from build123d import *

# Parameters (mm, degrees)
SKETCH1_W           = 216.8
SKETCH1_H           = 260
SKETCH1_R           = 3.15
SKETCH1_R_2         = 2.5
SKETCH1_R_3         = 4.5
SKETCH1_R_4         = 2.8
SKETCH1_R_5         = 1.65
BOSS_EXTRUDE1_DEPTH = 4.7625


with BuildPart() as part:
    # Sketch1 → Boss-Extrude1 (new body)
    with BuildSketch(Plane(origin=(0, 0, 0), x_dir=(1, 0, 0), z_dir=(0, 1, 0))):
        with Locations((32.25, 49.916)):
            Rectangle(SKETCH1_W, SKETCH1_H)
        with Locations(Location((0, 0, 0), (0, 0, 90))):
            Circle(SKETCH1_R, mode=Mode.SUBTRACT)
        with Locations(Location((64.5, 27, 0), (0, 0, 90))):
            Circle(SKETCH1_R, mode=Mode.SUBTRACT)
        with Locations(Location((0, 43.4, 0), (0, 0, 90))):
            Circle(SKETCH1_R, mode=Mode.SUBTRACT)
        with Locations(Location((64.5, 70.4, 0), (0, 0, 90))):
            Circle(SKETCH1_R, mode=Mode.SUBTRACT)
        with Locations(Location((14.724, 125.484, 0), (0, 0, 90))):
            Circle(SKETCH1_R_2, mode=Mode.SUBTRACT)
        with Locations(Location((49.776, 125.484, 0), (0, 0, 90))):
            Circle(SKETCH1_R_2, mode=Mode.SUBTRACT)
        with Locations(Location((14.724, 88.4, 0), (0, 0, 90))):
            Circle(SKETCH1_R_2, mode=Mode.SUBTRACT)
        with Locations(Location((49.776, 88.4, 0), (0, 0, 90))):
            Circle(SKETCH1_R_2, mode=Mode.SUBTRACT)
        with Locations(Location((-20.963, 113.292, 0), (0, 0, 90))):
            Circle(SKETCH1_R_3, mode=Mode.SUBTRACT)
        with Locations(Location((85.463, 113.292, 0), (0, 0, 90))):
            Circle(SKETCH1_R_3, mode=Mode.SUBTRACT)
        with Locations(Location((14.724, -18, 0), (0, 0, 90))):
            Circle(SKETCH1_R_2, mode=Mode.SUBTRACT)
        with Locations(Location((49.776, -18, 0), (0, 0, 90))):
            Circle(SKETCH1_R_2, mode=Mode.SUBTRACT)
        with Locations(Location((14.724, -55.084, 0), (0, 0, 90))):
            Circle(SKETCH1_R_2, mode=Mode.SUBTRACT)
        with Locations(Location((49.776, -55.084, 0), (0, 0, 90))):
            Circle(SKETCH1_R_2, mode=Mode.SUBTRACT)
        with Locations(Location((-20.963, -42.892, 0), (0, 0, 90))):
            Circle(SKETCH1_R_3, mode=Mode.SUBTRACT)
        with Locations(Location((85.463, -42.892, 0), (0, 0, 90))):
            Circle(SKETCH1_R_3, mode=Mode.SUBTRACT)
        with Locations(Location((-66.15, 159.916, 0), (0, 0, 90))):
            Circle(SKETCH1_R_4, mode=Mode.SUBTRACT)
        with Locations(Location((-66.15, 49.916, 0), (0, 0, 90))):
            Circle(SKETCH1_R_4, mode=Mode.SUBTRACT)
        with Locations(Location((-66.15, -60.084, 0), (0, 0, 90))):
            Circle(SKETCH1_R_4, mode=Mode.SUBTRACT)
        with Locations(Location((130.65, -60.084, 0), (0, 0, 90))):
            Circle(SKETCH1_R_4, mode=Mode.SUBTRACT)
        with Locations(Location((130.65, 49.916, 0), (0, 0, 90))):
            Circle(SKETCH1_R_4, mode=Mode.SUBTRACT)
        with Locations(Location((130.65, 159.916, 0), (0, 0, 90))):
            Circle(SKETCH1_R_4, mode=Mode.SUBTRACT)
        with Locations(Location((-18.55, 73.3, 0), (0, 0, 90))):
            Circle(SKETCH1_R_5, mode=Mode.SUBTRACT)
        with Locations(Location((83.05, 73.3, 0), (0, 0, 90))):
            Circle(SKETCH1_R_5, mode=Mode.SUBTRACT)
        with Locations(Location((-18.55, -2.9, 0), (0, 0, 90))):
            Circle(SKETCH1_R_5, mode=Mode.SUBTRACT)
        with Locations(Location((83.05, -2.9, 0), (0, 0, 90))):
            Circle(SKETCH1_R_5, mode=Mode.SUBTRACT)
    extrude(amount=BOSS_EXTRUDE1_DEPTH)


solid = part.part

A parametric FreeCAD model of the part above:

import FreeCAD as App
import Part
import Sketcher


def add_polygon(sketch, points):
    """Adds a closed chain of lines whose ends are joined by coincident constraints."""
    first, n = sketch.GeometryCount, len(points)
    for a, b in zip(points, points[1:] + points[:1]):
        sketch.addGeometry(Part.LineSegment(App.Vector(*a, 0), App.Vector(*b, 0)), False)
    for i in range(n):
        sketch.addConstraint(Sketcher.Constraint("Coincident", first + i, 2, first + (i + 1) % n, 1))

doc = App.newDocument("Part")
params = doc.addObject("Spreadsheet::Sheet", "Params")
for row, (alias, value) in enumerate([
    ("sketch1_diameter", "9 mm"),
    ("sketch1_diameter2", "5 mm"),
    ("sketch1_diameter3", "5.6 mm"),
    ("sketch1_diameter4", "3.3 mm"),
    ("sketch1_diameter5", "6.3 mm"),
    ("pad1_length", "4.7625 mm"),
], start=1):
    params.set(f"A{row}", alias)
    params.set(f"B{row}", "=" + value)
    params.setAlias(f"B{row}", alias)

body = doc.addObject("PartDesign::Body", "Body")

# Sketch on XZ plane
sketch1 = body.newObject("Sketcher::SketchObject", "Sketch")
sketch1.AttachmentSupport = (doc.getObject("XZ_Plane"), [""])
sketch1.MapMode = "FlatFace"
add_polygon(sketch1, [(-76.2, -179.9), (-76.2, 80.1), (140.7, 80.1), (140.7, -179.9)])  # lines 0-3
sketch1.addGeometry(Part.Circle(App.Vector(-66.2, 60.1, 0), App.Vector(0, 0, 1), 2.8), False)  # 4
sketch1.addGeometry(Part.Circle(App.Vector(-21, 42.9, 0), App.Vector(0, 0, 1), 4.5), False)  # 5
sketch1.addGeometry(Part.Circle(App.Vector(14.7, 55.1, 0), App.Vector(0, 0, 1), 2.5), False)  # 6
sketch1.addGeometry(Part.Circle(App.Vector(14.7, 18, 0), App.Vector(0, 0, 1), 2.5), False)  # 7
sketch1.addGeometry(Part.Circle(App.Vector(-18.6, 2.9, 0), App.Vector(0, 0, 1), 1.6), False)  # 8
sketch1.addGeometry(Part.Circle(App.Vector(0, 0, 0), App.Vector(0, 0, 1), 3.1), False)  # 9
sketch1.addGeometry(Part.Circle(App.Vector(0, -43.4, 0), App.Vector(0, 0, 1), 3.1), False)  # 10
sketch1.addGeometry(Part.Circle(App.Vector(49.8, 55.1, 0), App.Vector(0, 0, 1), 2.5), False)  # 11
sketch1.addGeometry(Part.Circle(App.Vector(49.8, 18, 0), App.Vector(0, 0, 1), 2.5), False)  # 12
sketch1.addGeometry(Part.Circle(App.Vector(85.5, 42.9, 0), App.Vector(0, 0, 1), 4.5), False)  # 13
sketch1.addGeometry(Part.Circle(App.Vector(130.7, 60.1, 0), App.Vector(0, 0, 1), 2.8), False)  # 14
sketch1.addGeometry(Part.Circle(App.Vector(64.5, -27, 0), App.Vector(0, 0, 1), 3.1), False)  # 15
sketch1.addGeometry(Part.Circle(App.Vector(83, 2.9, 0), App.Vector(0, 0, 1), 1.6), False)  # 16
sketch1.addGeometry(Part.Circle(App.Vector(-66.2, -49.9, 0), App.Vector(0, 0, 1), 2.8), False)  # 17
sketch1.addGeometry(Part.Circle(App.Vector(-18.6, -73.3, 0), App.Vector(0, 0, 1), 1.6), False)  # 18
sketch1.addGeometry(Part.Circle(App.Vector(14.7, -88.4, 0), App.Vector(0, 0, 1), 2.5), False)  # 19
sketch1.addGeometry(Part.Circle(App.Vector(-21, -113.3, 0), App.Vector(0, 0, 1), 4.5), False)  # 20
sketch1.addGeometry(Part.Circle(App.Vector(-66.2, -159.9, 0), App.Vector(0, 0, 1), 2.8), False)  # 21
sketch1.addGeometry(Part.Circle(App.Vector(14.7, -125.5, 0), App.Vector(0, 0, 1), 2.5), False)  # 22
sketch1.addGeometry(Part.Circle(App.Vector(64.5, -70.4, 0), App.Vector(0, 0, 1), 3.1), False)  # 23
sketch1.addGeometry(Part.Circle(App.Vector(49.8, -88.4, 0), App.Vector(0, 0, 1), 2.5), False)  # 24
sketch1.addGeometry(Part.Circle(App.Vector(83, -73.3, 0), App.Vector(0, 0, 1), 1.6), False)  # 25
sketch1.addGeometry(Part.Circle(App.Vector(130.7, -49.9, 0), App.Vector(0, 0, 1), 2.8), False)  # 26
sketch1.addGeometry(Part.Circle(App.Vector(49.8, -125.5, 0), App.Vector(0, 0, 1), 2.5), False)  # 27
sketch1.addGeometry(Part.Circle(App.Vector(85.5, -113.3, 0), App.Vector(0, 0, 1), 4.5), False)  # 28
sketch1.addGeometry(Part.Circle(App.Vector(130.7, -159.9, 0), App.Vector(0, 0, 1), 2.8), False)  # 29
sketch1.addConstraint(Sketcher.Constraint("Vertical", 0))
sketch1.addConstraint(Sketcher.Constraint("Horizontal", 1))
sketch1.addConstraint(Sketcher.Constraint("Vertical", 2))
sketch1.addConstraint(Sketcher.Constraint("Horizontal", 3))
sketch1.addConstraint(Sketcher.Constraint("Coincident", 9, 3, -1, 1))
sketch1.addConstraint(Sketcher.Constraint("Equal", 6, 7))
sketch1.addConstraint(Sketcher.Constraint("Equal", 9, 10))
sketch1.addConstraint(Sketcher.Constraint("Equal", 7, 11))
sketch1.addConstraint(Sketcher.Constraint("Equal", 11, 12))
sketch1.addConstraint(Sketcher.Constraint("Equal", 5, 13))
sketch1.addConstraint(Sketcher.Constraint("Equal", 4, 14))
sketch1.addConstraint(Sketcher.Constraint("Equal", 10, 15))
sketch1.addConstraint(Sketcher.Constraint("Equal", 8, 16))
sketch1.addConstraint(Sketcher.Constraint("Equal", 14, 17))
sketch1.addConstraint(Sketcher.Constraint("Equal", 16, 18))
sketch1.addConstraint(Sketcher.Constraint("Equal", 12, 19))
sketch1.addConstraint(Sketcher.Constraint("Equal", 13, 20))
sketch1.addConstraint(Sketcher.Constraint("Equal", 17, 21))
sketch1.addConstraint(Sketcher.Constraint("Equal", 19, 22))
sketch1.addConstraint(Sketcher.Constraint("Equal", 15, 23))
sketch1.addConstraint(Sketcher.Constraint("Equal", 22, 24))
sketch1.addConstraint(Sketcher.Constraint("Equal", 18, 25))
sketch1.addConstraint(Sketcher.Constraint("Equal", 21, 26))
sketch1.addConstraint(Sketcher.Constraint("Equal", 24, 27))
sketch1.addConstraint(Sketcher.Constraint("Equal", 20, 28))
sketch1.addConstraint(Sketcher.Constraint("Equal", 26, 29))
sketch1.addConstraint(Sketcher.Constraint("PointOnObject", 10, 3, -2))
sketch1.addConstraint(Sketcher.Constraint("Horizontal", 6, 3, 11, 3))
sketch1.addConstraint(Sketcher.Constraint("Horizontal", 7, 3, 12, 3))
sketch1.addConstraint(Sketcher.Constraint("Horizontal", 5, 3, 13, 3))
sketch1.addConstraint(Sketcher.Constraint("Horizontal", 4, 3, 14, 3))
sketch1.addConstraint(Sketcher.Constraint("Horizontal", 8, 3, 16, 3))
sketch1.addConstraint(Sketcher.Constraint("Horizontal", 19, 3, 24, 3))
sketch1.addConstraint(Sketcher.Constraint("Horizontal", 18, 3, 25, 3))
sketch1.addConstraint(Sketcher.Constraint("Horizontal", 17, 3, 26, 3))
sketch1.addConstraint(Sketcher.Constraint("Horizontal", 22, 3, 27, 3))
sketch1.addConstraint(Sketcher.Constraint("Horizontal", 20, 3, 28, 3))
sketch1.addConstraint(Sketcher.Constraint("Horizontal", 21, 3, 29, 3))
sketch1.addConstraint(Sketcher.Constraint("Vertical", 6, 3, 7, 3))
sketch1.addConstraint(Sketcher.Constraint("Vertical", 11, 3, 12, 3))
sketch1.addConstraint(Sketcher.Constraint("Vertical", 4, 3, 17, 3))
sketch1.addConstraint(Sketcher.Constraint("Vertical", 8, 3, 18, 3))
sketch1.addConstraint(Sketcher.Constraint("Vertical", 7, 3, 19, 3))
sketch1.addConstraint(Sketcher.Constraint("Vertical", 5, 3, 20, 3))
sketch1.addConstraint(Sketcher.Constraint("Vertical", 17, 3, 21, 3))
sketch1.addConstraint(Sketcher.Constraint("Vertical", 19, 3, 22, 3))
sketch1.addConstraint(Sketcher.Constraint("Vertical", 15, 3, 23, 3))
sketch1.addConstraint(Sketcher.Constraint("Vertical", 12, 3, 24, 3))
sketch1.addConstraint(Sketcher.Constraint("Vertical", 16, 3, 25, 3))
sketch1.addConstraint(Sketcher.Constraint("Vertical", 14, 3, 26, 3))
sketch1.addConstraint(Sketcher.Constraint("Vertical", 24, 3, 27, 3))
sketch1.addConstraint(Sketcher.Constraint("Vertical", 13, 3, 28, 3))
sketch1.addConstraint(Sketcher.Constraint("Vertical", 26, 3, 29, 3))
sketch1.addConstraint(Sketcher.Constraint("Diameter", 5, 9.0))
sketch1.addConstraint(Sketcher.Constraint("Diameter", 6, 5.0))
sketch1.addConstraint(Sketcher.Constraint("Diameter", 4, 5.6))
sketch1.addConstraint(Sketcher.Constraint("Diameter", 8, 3.3))
sketch1.addConstraint(Sketcher.Constraint("Diameter", 9, 6.3))
sketch1.addConstraint(Sketcher.Constraint("DistanceY", 0, 1, 0, 2, 260.0))
sketch1.addConstraint(Sketcher.Constraint("DistanceX", 1, 1, 1, 2, 216.8))
sketch1.addConstraint(Sketcher.Constraint("DistanceY", -1, 1, 7, 3, 18.0))
sketch1.addConstraint(Sketcher.Constraint("DistanceY", 15, 3, -1, 1, 27.0))
sketch1.addConstraint(Sketcher.Constraint("DistanceY", 6, 3, 4, 3, 5.0))
sketch1.addConstraint(Sketcher.Constraint("DistanceY", 19, 3, 10, 3, 45.0))
sketch1.addConstraint(Sketcher.Constraint("DistanceY", 21, 3, 17, 3, 110.0))
sketch1.addConstraint(Sketcher.Constraint("DistanceY", 19, 3, 23, 3, 18.0))
sketch1.addConstraint(Sketcher.Constraint("DistanceX", 0, 2, 4, 3, 10.0))
sketch1.addConstraint(Sketcher.Constraint("DistanceY", 4, 3, 0, 2, 20.0))
sketch1.addConstraint(Sketcher.Constraint("DistanceX", 14, 3, 1, 2, 10.0))
sketch1.addConstraint(Sketcher.Constraint("DistanceY", 2, 2, 29, 3, 20.0))
sketch1.addConstraint(Sketcher.Constraint("DistanceY", -1, 1, 8, 3, 2.9))
sketch1.addConstraint(Sketcher.Constraint("DistanceY", 10, 3, -1, 1, 43.4))
sketch1.addConstraint(Sketcher.Constraint("DistanceX", -1, 1, 15, 3, 64.5))
sketch1.addConstraint(Sketcher.Constraint("DistanceY", 18, 3, -1, 1, 73.3))
sketch1.addConstraint(Sketcher.Constraint("DistanceX", 4, 3, 8, 3, 47.6))
sketch1.addConstraint(Sketcher.Constraint("DistanceX", 25, 3, 26, 3, 47.6))
sketch1.addConstraint(Sketcher.Constraint("DistanceX", 4, 3, -1, 1, 66.15))
sketch1.addConstraint(Sketcher.Constraint("DistanceY", -1, 1, 4, 3, 60.084))
sketch1.addConstraint(Sketcher.Constraint("DistanceX", 5, 3, -1, 1, 20.963))
sketch1.addConstraint(Sketcher.Constraint("DistanceY", -1, 1, 5, 3, 42.892))
sketch1.addConstraint(Sketcher.Constraint("DistanceX", -1, 1, 6, 3, 14.724))
sketch1.addConstraint(Sketcher.Constraint("DistanceX", -1, 1, 11, 3, 49.776))
sketch1.addConstraint(Sketcher.Constraint("DistanceX", -1, 1, 13, 3, 85.463))
sketch1.addConstraint(Sketcher.Constraint("DistanceY", 20, 3, -1, 1, 113.292))
sketch1.addConstraint(Sketcher.Constraint("DistanceY", 22, 3, -1, 1, 125.484))
sketch1.setExpression("Constraints[57]", "Params.sketch1_diameter")
sketch1.setExpression("Constraints[58]", "Params.sketch1_diameter2")
sketch1.setExpression("Constraints[59]", "Params.sketch1_diameter3")
sketch1.setExpression("Constraints[60]", "Params.sketch1_diameter4")
sketch1.setExpression("Constraints[61]", "Params.sketch1_diameter5")
pad1 = body.newObject("PartDesign::Pad", "Pad")
pad1.Profile = sketch1
pad1.setExpression("Length", "Params.pad1_length")
pad1.Reversed = True

doc.recompute()
